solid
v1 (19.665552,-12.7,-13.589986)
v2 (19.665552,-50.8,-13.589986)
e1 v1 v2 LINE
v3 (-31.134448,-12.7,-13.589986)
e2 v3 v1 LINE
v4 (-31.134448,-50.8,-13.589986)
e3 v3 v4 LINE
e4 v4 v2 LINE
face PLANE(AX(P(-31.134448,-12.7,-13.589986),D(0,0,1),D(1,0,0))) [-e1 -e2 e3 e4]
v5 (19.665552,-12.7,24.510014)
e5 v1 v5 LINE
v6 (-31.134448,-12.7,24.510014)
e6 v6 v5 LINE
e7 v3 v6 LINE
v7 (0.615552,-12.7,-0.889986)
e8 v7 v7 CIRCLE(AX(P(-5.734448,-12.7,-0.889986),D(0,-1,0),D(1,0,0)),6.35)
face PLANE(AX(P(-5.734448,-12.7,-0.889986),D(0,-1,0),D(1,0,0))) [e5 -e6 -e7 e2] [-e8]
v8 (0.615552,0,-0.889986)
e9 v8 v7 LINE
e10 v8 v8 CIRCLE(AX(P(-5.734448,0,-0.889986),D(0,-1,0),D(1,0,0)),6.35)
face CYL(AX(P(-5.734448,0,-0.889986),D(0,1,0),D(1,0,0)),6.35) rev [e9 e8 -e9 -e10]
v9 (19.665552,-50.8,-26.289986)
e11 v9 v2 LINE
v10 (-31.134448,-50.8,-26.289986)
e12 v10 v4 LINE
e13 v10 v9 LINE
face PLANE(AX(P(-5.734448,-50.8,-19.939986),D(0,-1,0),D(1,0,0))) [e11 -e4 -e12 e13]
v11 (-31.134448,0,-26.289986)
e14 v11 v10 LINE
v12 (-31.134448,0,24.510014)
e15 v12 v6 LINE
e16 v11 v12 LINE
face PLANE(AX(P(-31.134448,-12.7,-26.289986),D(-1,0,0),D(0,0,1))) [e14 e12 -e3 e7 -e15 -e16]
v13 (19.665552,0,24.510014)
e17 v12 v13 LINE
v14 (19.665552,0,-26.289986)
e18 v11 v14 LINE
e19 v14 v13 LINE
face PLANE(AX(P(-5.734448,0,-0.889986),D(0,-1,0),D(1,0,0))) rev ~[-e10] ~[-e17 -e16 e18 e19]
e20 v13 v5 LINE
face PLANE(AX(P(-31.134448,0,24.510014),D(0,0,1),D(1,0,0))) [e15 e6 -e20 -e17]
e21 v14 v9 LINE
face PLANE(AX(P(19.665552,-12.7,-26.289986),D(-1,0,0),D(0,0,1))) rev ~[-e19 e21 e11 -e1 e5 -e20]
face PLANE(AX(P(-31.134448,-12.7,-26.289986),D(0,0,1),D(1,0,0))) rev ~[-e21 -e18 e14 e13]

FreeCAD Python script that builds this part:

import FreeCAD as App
import Part
import Sketcher
Q = App.Units.Quantity


def add_polygon(sketch, points):
    """Adds a closed chain of lines whose ends are joined by coincident constraints."""
    first, n = sketch.GeometryCount, len(points)
    for a, b in zip(points, points[1:] + points[:1]):
        sketch.addGeometry(Part.LineSegment(App.Vector(*a, 0), App.Vector(*b, 0)), False)
    for i in range(n):
        sketch.addConstraint(Sketcher.Constraint("Coincident", first + i, 2, first + (i + 1) % n, 1))

doc = App.newDocument("Part")
body = doc.addObject("PartDesign::Body", "Body")

# Sketch on XZ plane
sketch1 = body.newObject("Sketcher::SketchObject", "Sketch")
sketch1.AttachmentSupport = (doc.getObject("XZ_Plane"), [""])
sketch1.MapMode = "FlatFace"
add_polygon(sketch1, [(-31, 25), (-31, -26), (20, -26), (20, 25)])  # lines 0-3
sketch1.addGeometry(Part.Circle(App.Vector(-6, -1, 0), App.Vector(0, 0, 1), 6), False)  # 4
sketch1.addConstraint([
    Sketcher.Constraint("Vertical", 0),
    Sketcher.Constraint("Horizontal", 1),
    Sketcher.Constraint("Vertical", 2),
    Sketcher.Constraint("Horizontal", 3),
    Sketcher.Constraint("Equal", 3, 0),
    Sketcher.Constraint("Diameter", 4, Q("0.5 in")),
    Sketcher.Constraint("DistanceX", 1, 1, 1, 2, Q("2 in")),
    Sketcher.Constraint("DistanceX", 0, 2, 4, 3, Q("1 in")),
    Sketcher.Constraint("DistanceY", 0, 2, 4, 3, Q("1 in")),
    Sketcher.Constraint("DistanceX", 4, 3, -1, 1, 5.734448),
    Sketcher.Constraint("DistanceY", 4, 3, -1, 1, 0.889986),
])
pad1 = body.newObject("PartDesign::Pad", "Pad")
pad1.Profile = sketch1
pad1.Length = Q("0.5 in")

# Sketch on XZ plane
sketch2 = body.newObject("Sketcher::SketchObject", "Sketch001")
sketch2.AttachmentSupport = (doc.getObject("XZ_Plane"), [""])
sketch2.MapMode = "FlatFace"
sketch2.AttachmentOffset = App.Placement(App.Vector(0, 0, 0.5 * 25.4), App.Rotation())
add_polygon(sketch2, [(-31, -14), (-31, -26), (20, -26), (20, -14)])  # lines 0-3
sketch2.addConstraint([
    Sketcher.Constraint("Vertical", 0),
    Sketcher.Constraint("Horizontal", 1),
    Sketcher.Constraint("Vertical", 2),
    Sketcher.Constraint("Horizontal", 3),
    Sketcher.Constraint("DistanceX", 1, 1, 1, 2, Q("2 in")),
    Sketcher.Constraint("DistanceY", 0, 2, 0, 1, Q("0.5 in")),
    Sketcher.Constraint("DistanceX", 0, 2, -1, 1, 31.134448),
    Sketcher.Constraint("DistanceY", 0, 2, -1, 1, 26.289986),
])
pad2 = body.newObject("PartDesign::Pad", "Pad001")
pad2.Profile = sketch2
pad2.Length = Q("1.5 in")

doc.recompute()
